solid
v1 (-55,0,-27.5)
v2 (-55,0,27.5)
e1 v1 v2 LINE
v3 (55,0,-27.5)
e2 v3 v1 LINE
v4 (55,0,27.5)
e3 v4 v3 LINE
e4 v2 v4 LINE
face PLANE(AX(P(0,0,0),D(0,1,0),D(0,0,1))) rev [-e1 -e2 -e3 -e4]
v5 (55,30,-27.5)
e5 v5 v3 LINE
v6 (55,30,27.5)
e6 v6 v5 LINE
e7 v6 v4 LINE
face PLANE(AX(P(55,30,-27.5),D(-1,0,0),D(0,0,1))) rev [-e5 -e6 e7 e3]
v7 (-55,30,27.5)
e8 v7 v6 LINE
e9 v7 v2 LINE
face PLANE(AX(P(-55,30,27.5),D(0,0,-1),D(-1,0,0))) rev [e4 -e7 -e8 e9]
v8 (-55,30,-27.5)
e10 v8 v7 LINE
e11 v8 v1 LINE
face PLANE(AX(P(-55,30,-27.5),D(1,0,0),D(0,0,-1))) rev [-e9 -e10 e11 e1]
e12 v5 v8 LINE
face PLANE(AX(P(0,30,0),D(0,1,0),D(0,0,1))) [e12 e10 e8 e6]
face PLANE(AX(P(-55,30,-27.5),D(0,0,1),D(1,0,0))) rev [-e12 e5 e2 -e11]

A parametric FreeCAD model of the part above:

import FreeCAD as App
import Part
import Sketcher


def add_polygon(sketch, points):
    """Adds a closed chain of lines whose ends are joined by coincident constraints."""
    first, n = sketch.GeometryCount, len(points)
    for a, b in zip(points, points[1:] + points[:1]):
        sketch.addGeometry(Part.LineSegment(App.Vector(*a, 0), App.Vector(*b, 0)), False)
    for i in range(n):
        sketch.addConstraint(Sketcher.Constraint("Coincident", first + i, 2, first + (i + 1) % n, 1))

doc = App.newDocument("Part")
body = doc.addObject("PartDesign::Body", "Body")

# Sketch on XZ plane
sketch1 = body.newObject("Sketcher::SketchObject", "Sketch")
sketch1.AttachmentSupport = (doc.getObject("XZ_Plane"), [""])
sketch1.MapMode = "FlatFace"
add_polygon(sketch1, [(-55, -28), (-55, 28), (55, 28), (55, -28)])  # lines 0-3
sketch1.addConstraint(Sketcher.Constraint("Vertical", 0))
sketch1.addConstraint(Sketcher.Constraint("Horizontal", 1))
sketch1.addConstraint(Sketcher.Constraint("Vertical", 2))
sketch1.addConstraint(Sketcher.Constraint("Horizontal", 3))
sketch1.addConstraint(Sketcher.Constraint("Symmetric", 0, 2, 2, 2, -1, 1))
sketch1.addConstraint(Sketcher.Constraint("DistanceX", 1, 1, 1, 2, 110.0))
sketch1.addConstraint(Sketcher.Constraint("DistanceY", 0, 1, 0, 2, 55.0))
pad1 = body.newObject("PartDesign::Pad", "Pad")
pad1.Profile = sketch1
pad1.Length = 30
pad1.Reversed = True

doc.recompute()
